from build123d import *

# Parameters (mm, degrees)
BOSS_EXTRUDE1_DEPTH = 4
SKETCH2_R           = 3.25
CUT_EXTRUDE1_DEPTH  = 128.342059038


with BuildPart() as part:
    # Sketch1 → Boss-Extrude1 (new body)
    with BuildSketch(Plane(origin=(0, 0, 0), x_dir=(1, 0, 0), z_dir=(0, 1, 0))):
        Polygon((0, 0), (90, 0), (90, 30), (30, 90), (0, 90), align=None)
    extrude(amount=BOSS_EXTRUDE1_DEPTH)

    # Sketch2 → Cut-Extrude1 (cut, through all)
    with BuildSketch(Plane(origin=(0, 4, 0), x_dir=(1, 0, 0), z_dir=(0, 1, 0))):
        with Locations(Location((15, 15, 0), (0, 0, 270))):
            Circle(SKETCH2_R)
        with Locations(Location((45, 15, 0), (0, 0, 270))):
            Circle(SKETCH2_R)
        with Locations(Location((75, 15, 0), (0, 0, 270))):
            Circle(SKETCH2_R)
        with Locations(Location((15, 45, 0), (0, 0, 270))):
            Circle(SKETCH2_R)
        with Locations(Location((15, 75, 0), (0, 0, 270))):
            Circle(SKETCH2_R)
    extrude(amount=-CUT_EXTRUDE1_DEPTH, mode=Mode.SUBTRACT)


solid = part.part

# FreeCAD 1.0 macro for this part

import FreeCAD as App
import Part
import Sketcher


def add_polygon(sketch, points):
    """Adds a closed chain of lines whose ends are joined by coincident constraints."""
    first, n = sketch.GeometryCount, len(points)
    for a, b in zip(points, points[1:] + points[:1]):
        sketch.addGeometry(Part.LineSegment(App.Vector(*a, 0), App.Vector(*b, 0)), False)
    for i in range(n):
        sketch.addConstraint(Sketcher.Constraint("Coincident", first + i, 2, first + (i + 1) % n, 1))

doc = App.newDocument("Part")
body = doc.addObject("PartDesign::Body", "Body")

# Sketch on XZ plane
sketch1 = body.newObject("Sketcher::SketchObject", "Sketch")
sketch1.AttachmentSupport = (doc.getObject("XZ_Plane"), [""])
sketch1.MapMode = "FlatFace"
add_polygon(sketch1, [(0, 0), (90, 0), (90, -30), (30, -90), (0, -90)])  # lines 0-4
sketch1.addConstraint([
    Sketcher.Constraint("Horizontal", 0),
    Sketcher.Constraint("Vertical", 1),
    Sketcher.Constraint("Horizontal", 3),
    Sketcher.Constraint("Vertical", 4),
    Sketcher.Constraint("Coincident", 4, 2, -1, 1),
    Sketcher.Constraint("Equal", 3, 1),
    Sketcher.Constraint("Equal", 0, 4),
    Sketcher.Constraint("DistanceX", 0, 1, 0, 2, 90.0),
    Sketcher.Constraint("DistanceX", 3, 2, 3, 1, 30.0),
])
pad1 = body.newObject("PartDesign::Pad", "Pad")
pad1.Profile = sketch1
pad1.Length = 4
pad1.Reversed = True

# Sketch on XZ plane
sketch2 = body.newObject("Sketcher::SketchObject", "Sketch001")
sketch2.AttachmentSupport = (doc.getObject("XZ_Plane"), [""])
sketch2.MapMode = "FlatFace"
sketch2.AttachmentOffset = App.Placement(App.Vector(0, 0, -4), App.Rotation())
sketch2.addGeometry([
    Part.Circle(App.Vector(15, -15, 0), App.Vector(0, 0, 1), 3.25),  # 0
    Part.Circle(App.Vector(45, -15, 0), App.Vector(0, 0, 1), 3.25),  # 1
    Part.Circle(App.Vector(75, -15, 0), App.Vector(0, 0, 1), 3.25),  # 2
    Part.Circle(App.Vector(15, -45, 0), App.Vector(0, 0, 1), 3.25),  # 3
    Part.Circle(App.Vector(15, -75, 0), App.Vector(0, 0, 1), 3.25),  # 4
], False)
sketch2.addConstraint([
    Sketcher.Constraint("Equal", 0, 1),
    Sketcher.Constraint("Equal", 1, 2),
    Sketcher.Constraint("Equal", 2, 3),
    Sketcher.Constraint("Equal", 3, 4),
    Sketcher.Constraint("Horizontal", 0, 3, 1, 3),
    Sketcher.Constraint("Horizontal", 1, 3, 2, 3),
    Sketcher.Constraint("Vertical", 0, 3, 3, 3),
    Sketcher.Constraint("Vertical", 3, 3, 4, 3),
    Sketcher.Constraint("Diameter", 0, 6.5),
    Sketcher.Constraint("DistanceX", -1, 1, 0, 3, 15.0),
    Sketcher.Constraint("DistanceY", 0, 3, -1, 1, 15.0),
    Sketcher.Constraint("DistanceX", -1, 1, 1, 3, 45.0),
    Sketcher.Constraint("DistanceX", -1, 1, 2, 3, 75.0),
    Sketcher.Constraint("DistanceY", 3, 3, -1, 1, 45.0),
    Sketcher.Constraint("DistanceY", 4, 3, -1, 1, 75.0),
])
pocket1 = body.newObject("PartDesign::Pocket", "Pocket")
pocket1.Profile = sketch2
pocket1.Type = "ThroughAll"
pocket1.Reversed = True

doc.recompute()
